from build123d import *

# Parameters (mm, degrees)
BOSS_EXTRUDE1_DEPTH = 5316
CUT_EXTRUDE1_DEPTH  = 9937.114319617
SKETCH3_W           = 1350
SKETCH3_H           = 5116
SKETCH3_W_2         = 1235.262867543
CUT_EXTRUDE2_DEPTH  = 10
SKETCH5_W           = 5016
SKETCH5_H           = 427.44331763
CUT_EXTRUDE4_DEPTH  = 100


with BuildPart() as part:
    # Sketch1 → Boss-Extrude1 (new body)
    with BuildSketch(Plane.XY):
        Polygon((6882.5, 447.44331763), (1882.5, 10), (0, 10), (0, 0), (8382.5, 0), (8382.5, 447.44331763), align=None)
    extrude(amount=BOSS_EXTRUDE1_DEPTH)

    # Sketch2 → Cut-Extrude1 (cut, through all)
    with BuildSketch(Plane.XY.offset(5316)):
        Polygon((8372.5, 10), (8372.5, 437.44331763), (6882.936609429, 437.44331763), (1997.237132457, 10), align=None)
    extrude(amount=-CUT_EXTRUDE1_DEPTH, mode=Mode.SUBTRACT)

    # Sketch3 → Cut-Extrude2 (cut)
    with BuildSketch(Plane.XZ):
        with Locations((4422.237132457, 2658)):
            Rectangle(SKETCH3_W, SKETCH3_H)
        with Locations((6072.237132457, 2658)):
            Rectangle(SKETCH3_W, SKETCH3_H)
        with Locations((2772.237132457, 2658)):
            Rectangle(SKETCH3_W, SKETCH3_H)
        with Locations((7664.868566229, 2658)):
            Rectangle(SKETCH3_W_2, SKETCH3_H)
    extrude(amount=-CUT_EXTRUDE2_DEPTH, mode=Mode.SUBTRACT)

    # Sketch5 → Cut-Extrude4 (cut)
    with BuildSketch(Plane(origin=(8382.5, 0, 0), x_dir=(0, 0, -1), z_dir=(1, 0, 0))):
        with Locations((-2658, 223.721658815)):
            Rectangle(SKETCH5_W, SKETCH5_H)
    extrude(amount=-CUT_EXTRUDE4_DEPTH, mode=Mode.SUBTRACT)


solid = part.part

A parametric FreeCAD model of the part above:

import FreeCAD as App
import Part
import Sketcher

V = App.Vector
Q = App.Units.Quantity


def add_polygon(sketch, points):
    """Adds a closed chain of lines whose ends are joined by coincident constraints."""
    first, n = sketch.GeometryCount, len(points)
    for a, b in zip(points, points[1:] + points[:1]):
        sketch.addGeometry(Part.LineSegment(App.Vector(*a, 0), App.Vector(*b, 0)), False)
    for i in range(n):
        sketch.addConstraint(Sketcher.Constraint("Coincident", first + i, 2, first + (i + 1) % n, 1))

doc = App.newDocument("Part")
body = doc.addObject("PartDesign::Body", "Body")

# Sketch on XY plane
sketch1 = body.newObject("Sketcher::SketchObject", "Sketch")
sketch1.AttachmentSupport = (doc.getObject("XY_Plane"), [""])
sketch1.MapMode = "FlatFace"
add_polygon(sketch1, [(6882, 447), (1882, 10), (0, 10), (0, 0), (8382, 0), (8382, 447)])  # lines 0-5
sketch1.addConstraint(Sketcher.Constraint("Horizontal", 1))
sketch1.addConstraint(Sketcher.Constraint("Vertical", 2))
sketch1.addConstraint(Sketcher.Constraint("Horizontal", 3))
sketch1.addConstraint(Sketcher.Constraint("Vertical", 4))
sketch1.addConstraint(Sketcher.Constraint("Horizontal", 5))
sketch1.addConstraint(Sketcher.Constraint("Coincident", 2, 2, -1, 1))
sketch1.addConstraint(Sketcher.Constraint("DistanceX", 5, 2, 5, 1, Q("1500 mm")))
sketch1.addConstraint(Sketcher.Constraint("DistanceY", 2, 2, 2, 1, Q("10 mm")))
sketch1.addConstraint(Sketcher.Constraint("Angle", 0, Q("-175 deg")))
sketch1.addConstraint(Sketcher.Constraint("DistanceX", 1, 2, 1, 1, Q("1882.5 mm")))
sketch1.addConstraint(Sketcher.Constraint("DistanceX", 3, 1, 3, 2, Q("8382.5 mm")))
pad1 = body.newObject("PartDesign::Pad", "Pad")
pad1.Profile = sketch1
pad1.Length = 5316

# Sketch on XY plane
sketch2 = body.newObject("Sketcher::SketchObject", "Sketch001")
sketch2.AttachmentSupport = (doc.getObject("XY_Plane"), [""])
sketch2.MapMode = "FlatFace"
sketch2.AttachmentOffset = App.Placement(V(0, 0, 5316), App.Rotation())
add_polygon(sketch2, [(8372, 10), (8372, 437), (6883, 437), (1997, 10)])  # lines 0-3
sketch2.addConstraint(Sketcher.Constraint("Vertical", 0))
sketch2.addConstraint(Sketcher.Constraint("Horizontal", 1))
sketch2.addConstraint(Sketcher.Constraint("Horizontal", 3))
sketch2.addConstraint(Sketcher.Constraint("Angle", 2, Q("-175 deg")))
sketch2.addConstraint(Sketcher.Constraint("DistanceY", -1, 1, 2, 2, Q("10 mm")))
sketch2.addConstraint(Sketcher.Constraint("DistanceX", -1, 1, 0, 2, Q("8372.5 mm")))
sketch2.addConstraint(Sketcher.Constraint("DistanceX", 1, 2, 1, 1, Q("1489.563391 mm")))
sketch2.addConstraint(Sketcher.Constraint("DistanceX", 3, 1, 3, 2, Q("6375.262868 mm")))
pocket1 = body.newObject("PartDesign::Pocket", "Pocket")
pocket1.Profile = sketch2
pocket1.Type = "ThroughAll"

# Sketch on XZ plane
sketch3 = body.newObject("Sketcher::SketchObject", "Sketch002")
sketch3.AttachmentSupport = (doc.getObject("XZ_Plane"), [""])
sketch3.MapMode = "FlatFace"
add_polygon(sketch3, [(3747, 5216), (3747, 100), (5097, 100), (5097, 5216)])  # lines 0-3
add_polygon(sketch3, [(5397, 5216), (5397, 100), (6747, 100), (6747, 5216)])  # lines 4-7
add_polygon(sketch3, [(2097, 5216), (2097, 100), (3447, 100), (3447, 5216)])  # lines 8-11
add_polygon(sketch3, [(7047, 5216), (7047, 100), (8283, 100), (8283, 5216)])  # lines 12-15
sketch3.addConstraint(Sketcher.Constraint("Vertical", 0))
sketch3.addConstraint(Sketcher.Constraint("Horizontal", 1))
sketch3.addConstraint(Sketcher.Constraint("Vertical", 2))
sketch3.addConstraint(Sketcher.Constraint("Horizontal", 3))
sketch3.addConstraint(Sketcher.Constraint("Vertical", 4))
sketch3.addConstraint(Sketcher.Constraint("Horizontal", 5))
sketch3.addConstraint(Sketcher.Constraint("Vertical", 6))
sketch3.addConstraint(Sketcher.Constraint("Horizontal", 7))
sketch3.addConstraint(Sketcher.Constraint("Vertical", 8))
sketch3.addConstraint(Sketcher.Constraint("Horizontal", 9))
sketch3.addConstraint(Sketcher.Constraint("Vertical", 10))
sketch3.addConstraint(Sketcher.Constraint("Horizontal", 11))
sketch3.addConstraint(Sketcher.Constraint("Vertical", 12))
sketch3.addConstraint(Sketcher.Constraint("Horizontal", 13))
sketch3.addConstraint(Sketcher.Constraint("Vertical", 14))
sketch3.addConstraint(Sketcher.Constraint("Horizontal", 15))
sketch3.addConstraint(Sketcher.Constraint("Horizontal", 1, 2, 4, 2))
sketch3.addConstraint(Sketcher.Constraint("Horizontal", 3, 2, 6, 2))
sketch3.addConstraint(Sketcher.Constraint("Horizontal", 5, 2, 8, 2))
sketch3.addConstraint(Sketcher.Constraint("Horizontal", 7, 2, 10, 2))
sketch3.addConstraint(Sketcher.Constraint("Horizontal", 9, 2, 12, 2))
sketch3.addConstraint(Sketcher.Constraint("Horizontal", 11, 2, 14, 2))
sketch3.addConstraint(Sketcher.Constraint("Equal", 3, 5))
sketch3.addConstraint(Sketcher.Constraint("Equal", 7, 9))
sketch3.addConstraint(Sketcher.Constraint("DistanceX", 1, 1, 1, 2, Q("1350 mm")))
sketch3.addConstraint(Sketcher.Constraint("DistanceY", 0, 2, 0, 1, Q("5116 mm")))
sketch3.addConstraint(Sketcher.Constraint("DistanceY", -1, 1, 0, 2, Q("100 mm")))
sketch3.addConstraint(Sketcher.Constraint("DistanceX", 1, 2, 4, 2, Q("300 mm")))
sketch3.addConstraint(Sketcher.Constraint("DistanceX", 8, 2, 0, 2, Q("1650 mm")))
sketch3.addConstraint(Sketcher.Constraint("DistanceX", 5, 2, 12, 2, Q("300 mm")))
sketch3.addConstraint(Sketcher.Constraint("DistanceX", -1, 1, 13, 2, Q("8282.5 mm")))
sketch3.addConstraint(Sketcher.Constraint("DistanceX", 13, 1, 13, 2, Q("1235.262868 mm")))
pocket2 = body.newObject("PartDesign::Pocket", "Pocket001")
pocket2.Profile = sketch3
pocket2.Length = 10

# Sketch on YZ plane
sketch4 = body.newObject("Sketcher::SketchObject", "Sketch003")
sketch4.AttachmentSupport = (doc.getObject("YZ_Plane"), [""])
sketch4.MapMode = "FlatFace"
sketch4.AttachmentOffset = App.Placement(V(0, 0, 8382.5), App.Rotation())
add_polygon(sketch4, [(437, 5166), (10, 5166), (10, 150), (437, 150)])  # lines 0-3
sketch4.addConstraint(Sketcher.Constraint("Horizontal", 0))
sketch4.addConstraint(Sketcher.Constraint("Vertical", 1))
sketch4.addConstraint(Sketcher.Constraint("Horizontal", 2))
sketch4.addConstraint(Sketcher.Constraint("Vertical", 3))
sketch4.addConstraint(Sketcher.Constraint("DistanceY", 1, 2, 1, 1, Q("5016 mm")))
sketch4.addConstraint(Sketcher.Constraint("DistanceX", -1, 1, 0, 2, Q("10 mm")))
sketch4.addConstraint(Sketcher.Constraint("DistanceY", -1, 1, 0, 2, Q("5166 mm")))
sketch4.addConstraint(Sketcher.Constraint("DistanceX", 0, 2, 0, 1, Q("427.443318 mm")))
pocket3 = body.newObject("PartDesign::Pocket", "Pocket002")
pocket3.Profile = sketch4
pocket3.Length = 100

doc.recompute()
